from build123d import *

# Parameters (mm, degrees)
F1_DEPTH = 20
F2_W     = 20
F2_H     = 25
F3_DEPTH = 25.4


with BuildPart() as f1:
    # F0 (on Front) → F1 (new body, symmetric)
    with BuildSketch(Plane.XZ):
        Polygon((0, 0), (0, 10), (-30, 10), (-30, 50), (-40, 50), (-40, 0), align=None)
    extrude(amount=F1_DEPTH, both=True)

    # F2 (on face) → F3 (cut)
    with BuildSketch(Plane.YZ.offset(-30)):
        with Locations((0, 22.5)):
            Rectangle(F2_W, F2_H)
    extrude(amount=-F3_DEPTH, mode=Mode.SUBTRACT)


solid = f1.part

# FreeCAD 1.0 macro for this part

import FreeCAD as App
import Part
import Sketcher
from FreeCAD import Vector
Q = App.Units.Quantity

doc = App.newDocument("Part")
body = doc.addObject("PartDesign::Body", "Body")

# Sketch on XZ plane
sketch1 = body.newObject("Sketcher::SketchObject", "Sketch")
sketch1.AttachmentSupport = (doc.getObject("XZ_Plane"), [""])
sketch1.MapMode = "FlatFace"
sketch1.addGeometry(Part.LineSegment(Vector(0, 0, 0), Vector(0, 10, 0)), False)
sketch1.addGeometry(Part.LineSegment(Vector(0, 10, 0), Vector(-30, 10, 0)), False)
sketch1.addGeometry(Part.LineSegment(Vector(-30, 10, 0), Vector(-30, 50, 0)), False)
sketch1.addGeometry(Part.LineSegment(Vector(-30, 50, 0), Vector(-40, 50, 0)), False)
sketch1.addGeometry(Part.LineSegment(Vector(-40, 50, 0), Vector(-40, 0, 0)), False)
sketch1.addGeometry(Part.LineSegment(Vector(-40, 0, 0), Vector(0, 0, 0)), False)
sketch1.addConstraint(Sketcher.Constraint("Coincident", 0, 2, 1, 1))
sketch1.addConstraint(Sketcher.Constraint("Coincident", 1, 2, 2, 1))
sketch1.addConstraint(Sketcher.Constraint("Coincident", 2, 2, 3, 1))
sketch1.addConstraint(Sketcher.Constraint("Coincident", 3, 2, 4, 1))
sketch1.addConstraint(Sketcher.Constraint("Coincident", 4, 2, 5, 1))
sketch1.addConstraint(Sketcher.Constraint("Coincident", 5, 2, 0, 1))
sketch1.addConstraint(Sketcher.Constraint("Vertical", 0))
sketch1.addConstraint(Sketcher.Constraint("Horizontal", 1))
sketch1.addConstraint(Sketcher.Constraint("Vertical", 2))
sketch1.addConstraint(Sketcher.Constraint("Horizontal", 3))
sketch1.addConstraint(Sketcher.Constraint("Vertical", 4))
sketch1.addConstraint(Sketcher.Constraint("Horizontal", 5))
sketch1.addConstraint(Sketcher.Constraint("Coincident", 5, 2, -1, 1))
sketch1.addConstraint(Sketcher.Constraint("Equal", 3, 0))
sketch1.addConstraint(Sketcher.Constraint("Equal", 5, 2))
sketch1.addConstraint(Sketcher.Constraint("DistanceX", 1, 2, 1, 1, Q("30 mm")))
sketch1.addConstraint(Sketcher.Constraint("DistanceX", 3, 2, 3, 1, Q("10 mm")))
pad1 = body.newObject("PartDesign::Pad", "Pad")
pad1.Profile = sketch1
pad1.Length = 40
pad1.Midplane = True

# Sketch on YZ plane
sketch2 = body.newObject("Sketcher::SketchObject", "Sketch001")
sketch2.AttachmentSupport = (doc.getObject("YZ_Plane"), [""])
sketch2.MapMode = "FlatFace"
sketch2.AttachmentOffset = App.Placement(Vector(0, 0, -30), App.Rotation())
sketch2.addGeometry(Part.LineSegment(Vector(-10, 35, 0), Vector(-10, 10, 0)), False)
sketch2.addGeometry(Part.LineSegment(Vector(-10, 10, 0), Vector(10, 10, 0)), False)
sketch2.addGeometry(Part.LineSegment(Vector(10, 10, 0), Vector(10, 35, 0)), False)
sketch2.addGeometry(Part.LineSegment(Vector(10, 35, 0), Vector(-10, 35, 0)), False)
sketch2.addConstraint(Sketcher.Constraint("Coincident", 0, 2, 1, 1))
sketch2.addConstraint(Sketcher.Constraint("Coincident", 1, 2, 2, 1))
sketch2.addConstraint(Sketcher.Constraint("Coincident", 2, 2, 3, 1))
sketch2.addConstraint(Sketcher.Constraint("Coincident", 3, 2, 0, 1))
sketch2.addConstraint(Sketcher.Constraint("Vertical", 0))
sketch2.addConstraint(Sketcher.Constraint("Horizontal", 1))
sketch2.addConstraint(Sketcher.Constraint("Vertical", 2))
sketch2.addConstraint(Sketcher.Constraint("Horizontal", 3))
sketch2.addConstraint(Sketcher.Constraint("DistanceX", 1, 1, 1, 2, Q("20 mm")))
sketch2.addConstraint(Sketcher.Constraint("DistanceY", 0, 2, 0, 1, Q("25 mm")))
sketch2.addConstraint(Sketcher.Constraint("DistanceX", 0, 2, -1, 1, Q("10 mm")))
sketch2.addConstraint(Sketcher.Constraint("DistanceY", -1, 1, 0, 2, Q("10 mm")))
pocket1 = body.newObject("PartDesign::Pocket", "Pocket")
pocket1.Profile = sketch2
pocket1.Length = 25.4

doc.recompute()
